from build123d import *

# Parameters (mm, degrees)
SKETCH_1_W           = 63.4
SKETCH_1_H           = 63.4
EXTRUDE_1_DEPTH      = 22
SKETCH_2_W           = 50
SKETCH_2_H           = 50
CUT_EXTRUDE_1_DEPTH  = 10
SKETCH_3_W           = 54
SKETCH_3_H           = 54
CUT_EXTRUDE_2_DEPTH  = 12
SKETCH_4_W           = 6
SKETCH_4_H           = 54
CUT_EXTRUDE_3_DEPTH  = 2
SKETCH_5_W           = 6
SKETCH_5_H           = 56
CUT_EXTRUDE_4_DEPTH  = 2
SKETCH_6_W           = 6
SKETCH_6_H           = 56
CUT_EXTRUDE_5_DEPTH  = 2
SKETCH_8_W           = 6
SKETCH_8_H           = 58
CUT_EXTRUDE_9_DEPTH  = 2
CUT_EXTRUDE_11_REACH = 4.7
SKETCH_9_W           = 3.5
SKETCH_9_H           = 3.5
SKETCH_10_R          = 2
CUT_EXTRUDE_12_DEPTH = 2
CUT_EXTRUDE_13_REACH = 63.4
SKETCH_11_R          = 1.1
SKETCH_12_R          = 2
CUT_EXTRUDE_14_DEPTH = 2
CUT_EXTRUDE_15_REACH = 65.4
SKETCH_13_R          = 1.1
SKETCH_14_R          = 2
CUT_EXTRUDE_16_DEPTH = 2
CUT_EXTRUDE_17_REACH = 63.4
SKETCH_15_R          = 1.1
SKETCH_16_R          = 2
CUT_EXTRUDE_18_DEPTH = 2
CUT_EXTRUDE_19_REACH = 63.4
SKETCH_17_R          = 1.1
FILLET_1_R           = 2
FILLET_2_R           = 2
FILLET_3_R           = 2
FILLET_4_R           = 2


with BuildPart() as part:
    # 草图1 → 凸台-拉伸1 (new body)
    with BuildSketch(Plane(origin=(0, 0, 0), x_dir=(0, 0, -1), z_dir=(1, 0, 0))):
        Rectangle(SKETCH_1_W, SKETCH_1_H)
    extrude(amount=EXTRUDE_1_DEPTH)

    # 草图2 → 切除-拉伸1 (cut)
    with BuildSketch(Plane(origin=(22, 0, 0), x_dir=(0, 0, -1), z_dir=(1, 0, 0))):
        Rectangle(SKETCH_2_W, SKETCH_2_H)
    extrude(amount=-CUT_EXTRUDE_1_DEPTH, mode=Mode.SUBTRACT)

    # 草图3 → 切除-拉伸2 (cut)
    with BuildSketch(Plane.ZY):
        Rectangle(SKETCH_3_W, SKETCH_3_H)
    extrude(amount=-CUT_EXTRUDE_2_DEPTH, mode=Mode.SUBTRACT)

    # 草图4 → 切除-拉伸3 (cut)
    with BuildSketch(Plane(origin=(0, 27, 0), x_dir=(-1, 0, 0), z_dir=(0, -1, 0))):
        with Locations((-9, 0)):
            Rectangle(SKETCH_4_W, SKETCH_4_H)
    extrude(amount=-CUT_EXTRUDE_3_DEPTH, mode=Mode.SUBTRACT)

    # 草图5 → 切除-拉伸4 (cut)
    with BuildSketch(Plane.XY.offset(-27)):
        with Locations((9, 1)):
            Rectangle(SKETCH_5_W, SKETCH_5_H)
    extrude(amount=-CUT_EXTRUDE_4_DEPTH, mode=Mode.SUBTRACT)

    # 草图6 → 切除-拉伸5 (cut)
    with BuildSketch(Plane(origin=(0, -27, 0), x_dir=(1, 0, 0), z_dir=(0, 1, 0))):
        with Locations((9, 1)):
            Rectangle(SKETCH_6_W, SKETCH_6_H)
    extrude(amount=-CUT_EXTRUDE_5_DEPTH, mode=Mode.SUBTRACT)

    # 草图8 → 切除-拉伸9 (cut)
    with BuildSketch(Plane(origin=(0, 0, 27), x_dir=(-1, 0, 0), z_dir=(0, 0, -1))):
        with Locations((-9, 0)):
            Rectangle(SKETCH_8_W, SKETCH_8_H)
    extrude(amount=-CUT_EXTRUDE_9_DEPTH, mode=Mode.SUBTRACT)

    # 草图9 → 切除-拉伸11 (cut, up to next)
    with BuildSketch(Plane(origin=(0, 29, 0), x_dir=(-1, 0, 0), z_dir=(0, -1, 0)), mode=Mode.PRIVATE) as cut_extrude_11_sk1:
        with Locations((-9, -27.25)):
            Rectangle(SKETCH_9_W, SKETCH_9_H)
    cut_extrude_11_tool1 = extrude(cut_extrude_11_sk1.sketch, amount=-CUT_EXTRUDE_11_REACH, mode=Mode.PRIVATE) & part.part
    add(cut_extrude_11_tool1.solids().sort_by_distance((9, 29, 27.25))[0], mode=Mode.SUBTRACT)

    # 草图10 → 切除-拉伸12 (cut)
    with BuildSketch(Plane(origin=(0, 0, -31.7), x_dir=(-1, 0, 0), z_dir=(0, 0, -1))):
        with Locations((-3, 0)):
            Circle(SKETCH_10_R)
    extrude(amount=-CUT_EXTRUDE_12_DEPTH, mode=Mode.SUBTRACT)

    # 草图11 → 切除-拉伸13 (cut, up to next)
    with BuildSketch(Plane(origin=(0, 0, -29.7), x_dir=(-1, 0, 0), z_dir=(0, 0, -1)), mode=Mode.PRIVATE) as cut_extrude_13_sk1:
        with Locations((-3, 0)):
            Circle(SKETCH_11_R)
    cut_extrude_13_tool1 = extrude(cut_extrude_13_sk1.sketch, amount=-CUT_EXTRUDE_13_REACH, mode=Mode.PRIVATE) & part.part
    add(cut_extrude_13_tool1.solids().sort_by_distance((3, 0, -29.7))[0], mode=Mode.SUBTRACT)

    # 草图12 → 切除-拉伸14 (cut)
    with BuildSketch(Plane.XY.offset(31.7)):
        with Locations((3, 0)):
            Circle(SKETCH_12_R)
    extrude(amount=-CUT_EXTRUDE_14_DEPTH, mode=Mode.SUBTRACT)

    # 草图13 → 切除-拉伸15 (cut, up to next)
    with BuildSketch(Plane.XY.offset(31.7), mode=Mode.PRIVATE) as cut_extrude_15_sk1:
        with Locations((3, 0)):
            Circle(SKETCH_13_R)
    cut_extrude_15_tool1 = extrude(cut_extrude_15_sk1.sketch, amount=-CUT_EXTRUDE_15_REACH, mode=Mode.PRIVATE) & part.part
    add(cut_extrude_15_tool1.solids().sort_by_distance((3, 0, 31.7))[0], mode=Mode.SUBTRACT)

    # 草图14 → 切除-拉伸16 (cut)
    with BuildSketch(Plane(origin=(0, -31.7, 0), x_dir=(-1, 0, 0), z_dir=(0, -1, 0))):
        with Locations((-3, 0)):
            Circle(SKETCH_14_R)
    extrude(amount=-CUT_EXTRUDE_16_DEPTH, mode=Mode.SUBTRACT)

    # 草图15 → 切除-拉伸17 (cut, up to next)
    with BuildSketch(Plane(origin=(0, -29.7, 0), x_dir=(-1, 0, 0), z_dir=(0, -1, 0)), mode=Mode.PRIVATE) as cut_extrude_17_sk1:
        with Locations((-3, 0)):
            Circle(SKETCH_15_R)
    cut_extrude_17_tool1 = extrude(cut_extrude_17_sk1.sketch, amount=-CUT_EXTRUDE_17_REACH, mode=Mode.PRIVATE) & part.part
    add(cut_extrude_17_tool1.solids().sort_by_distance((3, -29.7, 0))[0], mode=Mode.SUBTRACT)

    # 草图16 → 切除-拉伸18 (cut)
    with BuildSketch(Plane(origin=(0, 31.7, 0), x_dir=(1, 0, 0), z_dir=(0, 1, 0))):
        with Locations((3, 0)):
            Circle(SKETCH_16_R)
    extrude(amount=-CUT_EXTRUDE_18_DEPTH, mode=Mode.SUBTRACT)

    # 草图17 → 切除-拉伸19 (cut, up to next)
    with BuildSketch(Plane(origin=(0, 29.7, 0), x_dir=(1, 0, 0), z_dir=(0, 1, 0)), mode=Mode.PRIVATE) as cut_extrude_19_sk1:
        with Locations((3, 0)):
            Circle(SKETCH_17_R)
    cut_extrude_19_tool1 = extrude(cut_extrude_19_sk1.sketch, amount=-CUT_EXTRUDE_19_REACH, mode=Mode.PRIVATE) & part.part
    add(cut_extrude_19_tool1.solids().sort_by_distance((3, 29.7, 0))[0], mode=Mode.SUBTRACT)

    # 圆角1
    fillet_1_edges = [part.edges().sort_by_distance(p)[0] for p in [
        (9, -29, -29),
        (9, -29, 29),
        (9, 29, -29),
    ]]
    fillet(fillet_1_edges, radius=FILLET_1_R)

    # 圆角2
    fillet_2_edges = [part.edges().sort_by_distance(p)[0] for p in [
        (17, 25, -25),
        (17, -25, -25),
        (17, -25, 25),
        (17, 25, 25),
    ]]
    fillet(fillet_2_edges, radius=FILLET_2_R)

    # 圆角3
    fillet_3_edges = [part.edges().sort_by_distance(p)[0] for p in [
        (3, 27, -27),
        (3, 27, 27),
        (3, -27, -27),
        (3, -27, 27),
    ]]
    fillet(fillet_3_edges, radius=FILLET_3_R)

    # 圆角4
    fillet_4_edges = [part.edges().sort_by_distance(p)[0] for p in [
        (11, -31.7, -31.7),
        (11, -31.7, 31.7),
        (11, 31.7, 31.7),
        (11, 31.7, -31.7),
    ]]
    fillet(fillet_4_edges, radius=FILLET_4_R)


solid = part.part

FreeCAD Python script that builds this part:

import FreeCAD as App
import Part
import Sketcher


def edges_at(feature, points):
    """Names of the edges that pass closest to the given points."""
    edges = feature.Shape.Edges
    near = lambda p: min(range(len(edges)), key=lambda i: edges[i].distToShape(Part.Vertex(*p))[0])
    return sorted({f"Edge{near(p) + 1}" for p in points})


def add_polygon(sketch, points):
    """Adds a closed chain of lines whose ends are joined by coincident constraints."""
    first, n = sketch.GeometryCount, len(points)
    for a, b in zip(points, points[1:] + points[:1]):
        sketch.addGeometry(Part.LineSegment(App.Vector(*a, 0), App.Vector(*b, 0)), False)
    for i in range(n):
        sketch.addConstraint(Sketcher.Constraint("Coincident", first + i, 2, first + (i + 1) % n, 1))

doc = App.newDocument("Part")
params = doc.addObject("Spreadsheet::Sheet", "Params")
for row, (alias, value) in enumerate([
    ("sketch1_width", "63.4 mm"),
    ("pad1_length", "22 mm"),
    ("sketch2_width", "50 mm"),
    ("pocket1_length", "10 mm"),
    ("sketch3_width", "54 mm"),
    ("pocket2_length", "12 mm"),
    ("sketch4_width", "6 mm"),
    ("sketch4_height", "54 mm"),
    ("pocket3_length", "2 mm"),
    ("sketch5_width", "6 mm"),
    ("sketch5_height", "56 mm"),
    ("pocket4_length", "2 mm"),
    ("sketch6_width", "6 mm"),
    ("sketch6_height", "56 mm"),
    ("pocket5_length", "2 mm"),
    ("sketch7_width", "6 mm"),
    ("sketch7_height", "58 mm"),
    ("pocket6_length", "2 mm"),
    ("sketch8_width", "3.5 mm"),
    ("sketch9_diameter", "4 mm"),
    ("pocket8_length", "2 mm"),
    ("sketch10_diameter", "2.2 mm"),
    ("sketch11_diameter", "4 mm"),
    ("pocket10_length", "2 mm"),
    ("sketch12_diameter", "2.2 mm"),
    ("pocket11_length", "4.7 mm"),
    ("sketch13_diameter", "4 mm"),
    ("pocket12_length", "2 mm"),
    ("sketch14_diameter", "2.2 mm"),
    ("sketch15_diameter", "4 mm"),
    ("pocket14_length", "2 mm"),
    ("sketch16_diameter", "2.2 mm"),
    ("fillet_radius", "2 mm"),
    ("fillet2_radius", "2 mm"),
    ("fillet3_radius", "2 mm"),
    ("fillet4_radius", "2 mm"),
], start=1):
    params.set(f"A{row}", alias)
    params.set(f"B{row}", "=" + value)
    params.setAlias(f"B{row}", alias)

body = doc.addObject("PartDesign::Body", "Body")

# Sketch on YZ plane
sketch1 = body.newObject("Sketcher::SketchObject", "Sketch")
sketch1.AttachmentSupport = (doc.getObject("YZ_Plane"), [""])
sketch1.MapMode = "FlatFace"
add_polygon(sketch1, [(32, 32), (-32, 32), (-32, -32), (32, -32)])  # lines 0-3
sketch1.addConstraint([
    Sketcher.Constraint("Horizontal", 0),
    Sketcher.Constraint("Vertical", 1),
    Sketcher.Constraint("Horizontal", 2),
    Sketcher.Constraint("Vertical", 3),
    Sketcher.Constraint("Symmetric", 0, 2, 2, 2, -1, 1),
    Sketcher.Constraint("Equal", 2, 1),
    Sketcher.Constraint("DistanceX", 0, 2, 0, 1, 63.4),
])
sketch1.setExpression("Constraints[10]", "Params.sketch1_width")
pad1 = body.newObject("PartDesign::Pad", "Pad")
pad1.Profile = sketch1
pad1.setExpression("Length", "Params.pad1_length")

# Sketch on YZ plane
sketch2 = body.newObject("Sketcher::SketchObject", "Sketch001")
sketch2.AttachmentSupport = (doc.getObject("YZ_Plane"), [""])
sketch2.MapMode = "FlatFace"
sketch2.AttachmentOffset = App.Placement(App.Vector(0, 0, 22), App.Rotation())
add_polygon(sketch2, [(25, 25), (-25, 25), (-25, -25), (25, -25)])  # lines 0-3
sketch2.addConstraint([
    Sketcher.Constraint("Horizontal", 0),
    Sketcher.Constraint("Vertical", 1),
    Sketcher.Constraint("Horizontal", 2),
    Sketcher.Constraint("Vertical", 3),
    Sketcher.Constraint("Symmetric", 0, 2, 2, 2, -1, 1),
    Sketcher.Constraint("Equal", 2, 1),
    Sketcher.Constraint("DistanceX", 0, 2, 0, 1, 50.0),
])
sketch2.setExpression("Constraints[10]", "Params.sketch2_width")
pocket1 = body.newObject("PartDesign::Pocket", "Pocket")
pocket1.Profile = sketch2
pocket1.setExpression("Length", "Params.pocket1_length")

# Sketch on YZ plane
sketch3 = body.newObject("Sketcher::SketchObject", "Sketch002")
sketch3.AttachmentSupport = (doc.getObject("YZ_Plane"), [""])
sketch3.MapMode = "FlatFace"
add_polygon(sketch3, [(27, -27), (-27, -27), (-27, 27), (27, 27)])  # lines 0-3
sketch3.addConstraint([
    Sketcher.Constraint("Horizontal", 0),
    Sketcher.Constraint("Vertical", 1),
    Sketcher.Constraint("Horizontal", 2),
    Sketcher.Constraint("Vertical", 3),
    Sketcher.Constraint("Symmetric", 0, 2, 2, 2, -1, 1),
    Sketcher.Constraint("Equal", 2, 1),
    Sketcher.Constraint("DistanceX", 0, 2, 0, 1, 54.0),
])
sketch3.setExpression("Constraints[10]", "Params.sketch3_width")
pocket2 = body.newObject("PartDesign::Pocket", "Pocket001")
pocket2.Profile = sketch3
pocket2.setExpression("Length", "Params.pocket2_length")
pocket2.Reversed = True

# Sketch on XZ plane
sketch4 = body.newObject("Sketcher::SketchObject", "Sketch003")
sketch4.AttachmentSupport = (doc.getObject("XZ_Plane"), [""])
sketch4.MapMode = "FlatFace"
sketch4.AttachmentOffset = App.Placement(App.Vector(0, 0, -27), App.Rotation())
add_polygon(sketch4, [(12, -27), (12, 27), (6, 27), (6, -27)])  # lines 0-3
sketch4.addConstraint([
    Sketcher.Constraint("Vertical", 0),
    Sketcher.Constraint("Horizontal", 1),
    Sketcher.Constraint("Vertical", 2),
    Sketcher.Constraint("Horizontal", 3),
    Sketcher.Constraint("DistanceX", 1, 2, 1, 1, 6.0),
    Sketcher.Constraint("DistanceY", 0, 1, 0, 2, 54.0),
    Sketcher.Constraint("DistanceX", -1, 1, 0, 2, 12.0),
    Sketcher.Constraint("DistanceY", -1, 1, 0, 2, 27.0),
])
sketch4.setExpression("Constraints[8]", "Params.sketch4_width")
sketch4.setExpression("Constraints[9]", "Params.sketch4_height")
pocket3 = body.newObject("PartDesign::Pocket", "Pocket002")
pocket3.Profile = sketch4
pocket3.setExpression("Length", "Params.pocket3_length")

# Sketch on XY plane
sketch5 = body.newObject("Sketcher::SketchObject", "Sketch004")
sketch5.AttachmentSupport = (doc.getObject("XY_Plane"), [""])
sketch5.MapMode = "FlatFace"
sketch5.AttachmentOffset = App.Placement(App.Vector(0, 0, -27), App.Rotation())
add_polygon(sketch5, [(6, 29), (6, -27), (12, -27), (12, 29)])  # lines 0-3
sketch5.addConstraint([
    Sketcher.Constraint("Vertical", 0),
    Sketcher.Constraint("Horizontal", 1),
    Sketcher.Constraint("Vertical", 2),
    Sketcher.Constraint("Horizontal", 3),
    Sketcher.Constraint("DistanceX", 1, 1, 1, 2, 6.0),
    Sketcher.Constraint("DistanceY", 0, 2, 0, 1, 56.0),
    Sketcher.Constraint("DistanceX", -1, 1, 0, 2, 6.0),
    Sketcher.Constraint("DistanceY", 0, 2, -1, 1, 27.0),
])
sketch5.setExpression("Constraints[8]", "Params.sketch5_width")
sketch5.setExpression("Constraints[9]", "Params.sketch5_height")
pocket4 = body.newObject("PartDesign::Pocket", "Pocket003")
pocket4.Profile = sketch5
pocket4.setExpression("Length", "Params.pocket4_length")

# Sketch on XZ plane
sketch6 = body.newObject("Sketcher::SketchObject", "Sketch005")
sketch6.AttachmentSupport = (doc.getObject("XZ_Plane"), [""])
sketch6.MapMode = "FlatFace"
sketch6.AttachmentOffset = App.Placement(App.Vector(0, 0, 27), App.Rotation())
add_polygon(sketch6, [(6, -29), (6, 27), (12, 27), (12, -29)])  # lines 0-3
sketch6.addConstraint([
    Sketcher.Constraint("Vertical", 0),
    Sketcher.Constraint("Horizontal", 1),
    Sketcher.Constraint("Vertical", 2),
    Sketcher.Constraint("Horizontal", 3),
    Sketcher.Constraint("DistanceX", 1, 1, 1, 2, 6.0),
    Sketcher.Constraint("DistanceY", 0, 1, 0, 2, 56.0),
    Sketcher.Constraint("DistanceX", -1, 1, 0, 2, 6.0),
    Sketcher.Constraint("DistanceY", -1, 1, 0, 2, 27.0),
])
sketch6.setExpression("Constraints[8]", "Params.sketch6_width")
sketch6.setExpression("Constraints[9]", "Params.sketch6_height")
pocket5 = body.newObject("PartDesign::Pocket", "Pocket004")
pocket5.Profile = sketch6
pocket5.setExpression("Length", "Params.pocket5_length")
pocket5.Reversed = True

# Sketch on XY plane
sketch7 = body.newObject("Sketcher::SketchObject", "Sketch006")
sketch7.AttachmentSupport = (doc.getObject("XY_Plane"), [""])
sketch7.MapMode = "FlatFace"
sketch7.AttachmentOffset = App.Placement(App.Vector(0, 0, 27), App.Rotation())
add_polygon(sketch7, [(12, 29), (12, -29), (6, -29), (6, 29)])  # lines 0-3
sketch7.addConstraint([
    Sketcher.Constraint("Vertical", 0),
    Sketcher.Constraint("Horizontal", 1),
    Sketcher.Constraint("Vertical", 2),
    Sketcher.Constraint("Horizontal", 3),
    Sketcher.Constraint("DistanceX", 1, 2, 1, 1, 6.0),
    Sketcher.Constraint("DistanceY", 0, 2, 0, 1, 58.0),
    Sketcher.Constraint("DistanceX", -1, 1, 0, 2, 12.0),
    Sketcher.Constraint("DistanceY", 0, 2, -1, 1, 29.0),
])
sketch7.setExpression("Constraints[8]", "Params.sketch7_width")
sketch7.setExpression("Constraints[9]", "Params.sketch7_height")
pocket6 = body.newObject("PartDesign::Pocket", "Pocket005")
pocket6.Profile = sketch7
pocket6.setExpression("Length", "Params.pocket6_length")
pocket6.Reversed = True

# Sketch on XZ plane
sketch8 = body.newObject("Sketcher::SketchObject", "Sketch007")
sketch8.AttachmentSupport = (doc.getObject("XZ_Plane"), [""])
sketch8.MapMode = "FlatFace"
sketch8.AttachmentOffset = App.Placement(App.Vector(0, 0, -29), App.Rotation())
add_polygon(sketch8, [(10.8, 25.5), (10.8, 29), (7.2, 29), (7.2, 25.5)])  # lines 0-3
sketch8.addConstraint([
    Sketcher.Constraint("Vertical", 0),
    Sketcher.Constraint("Horizontal", 1),
    Sketcher.Constraint("Vertical", 2),
    Sketcher.Constraint("Horizontal", 3),
    Sketcher.Constraint("Equal", 3, 0),
    Sketcher.Constraint("DistanceX", 1, 2, 1, 1, 3.5),
    Sketcher.Constraint("DistanceY", -1, 1, 0, 2, 29.0),
    Sketcher.Constraint("DistanceX", -1, 1, 0, 2, 10.75),
])
sketch8.setExpression("Constraints[9]", "Params.sketch8_width")
pocket7 = body.newObject("PartDesign::Pocket", "Pocket006")
pocket7.Profile = sketch8
pocket7.Type = "UpToFirst"

# Sketch on XY plane
sketch9 = body.newObject("Sketcher::SketchObject", "Sketch008")
sketch9.AttachmentSupport = (doc.getObject("XY_Plane"), [""])
sketch9.MapMode = "FlatFace"
sketch9.AttachmentOffset = App.Placement(App.Vector(0, 0, -31.7), App.Rotation())
sketch9.addGeometry(Part.Circle(App.Vector(3, 0, 0), App.Vector(0, 0, 1), 2), False)
sketch9.addConstraint([
    Sketcher.Constraint("PointOnObject", 0, 3, -1),
    Sketcher.Constraint("Diameter", 0, 4.0),
    Sketcher.Constraint("DistanceX", -1, 1, 0, 3, 3.0),
])
sketch9.setExpression("Constraints[1]", "Params.sketch9_diameter")
pocket8 = body.newObject("PartDesign::Pocket", "Pocket007")
pocket8.Profile = sketch9
pocket8.setExpression("Length", "Params.pocket8_length")
pocket8.Reversed = True

# Sketch on XY plane
sketch10 = body.newObject("Sketcher::SketchObject", "Sketch009")
sketch10.AttachmentSupport = (doc.getObject("XY_Plane"), [""])
sketch10.MapMode = "FlatFace"
sketch10.AttachmentOffset = App.Placement(App.Vector(0, 0, -29.7), App.Rotation())
sketch10.addGeometry(Part.Circle(App.Vector(3, 0, 0), App.Vector(0, 0, 1), 1.1), False)
sketch10.addConstraint([
    Sketcher.Constraint("PointOnObject", 0, 3, -1),
    Sketcher.Constraint("Diameter", 0, 2.2),
    Sketcher.Constraint("DistanceX", -1, 1, 0, 3, 3.0),
])
sketch10.setExpression("Constraints[1]", "Params.sketch10_diameter")
pocket9 = body.newObject("PartDesign::Pocket", "Pocket008")
pocket9.Profile = sketch10
pocket9.Type = "UpToFirst"
pocket9.Reversed = True

# Sketch on XY plane
sketch11 = body.newObject("Sketcher::SketchObject", "Sketch010")
sketch11.AttachmentSupport = (doc.getObject("XY_Plane"), [""])
sketch11.MapMode = "FlatFace"
sketch11.AttachmentOffset = App.Placement(App.Vector(0, 0, 31.7), App.Rotation())
sketch11.addGeometry(Part.Circle(App.Vector(3, 0, 0), App.Vector(0, 0, 1), 2), False)
sketch11.addConstraint([
    Sketcher.Constraint("PointOnObject", 0, 3, -1),
    Sketcher.Constraint("Diameter", 0, 4.0),
    Sketcher.Constraint("DistanceX", -1, 1, 0, 3, 3.0),
])
sketch11.setExpression("Constraints[1]", "Params.sketch11_diameter")
pocket10 = body.newObject("PartDesign::Pocket", "Pocket009")
pocket10.Profile = sketch11
pocket10.setExpression("Length", "Params.pocket10_length")

# Sketch on XY plane
sketch12 = body.newObject("Sketcher::SketchObject", "Sketch011")
sketch12.AttachmentSupport = (doc.getObject("XY_Plane"), [""])
sketch12.MapMode = "FlatFace"
sketch12.AttachmentOffset = App.Placement(App.Vector(0, 0, 31.7), App.Rotation())
sketch12.addGeometry(Part.Circle(App.Vector(3, 0, 0), App.Vector(0, 0, 1), 1.1), False)
sketch12.addConstraint([
    Sketcher.Constraint("PointOnObject", 0, 3, -1),
    Sketcher.Constraint("Diameter", 0, 2.2),
    Sketcher.Constraint("DistanceX", -1, 1, 0, 3, 3.0),
])
sketch12.setExpression("Constraints[1]", "Params.sketch12_diameter")
pocket11 = body.newObject("PartDesign::Pocket", "Pocket010")
pocket11.Profile = sketch12
pocket11.setExpression("Length", "Params.pocket11_length")

# Sketch on XZ plane
sketch13 = body.newObject("Sketcher::SketchObject", "Sketch012")
sketch13.AttachmentSupport = (doc.getObject("XZ_Plane"), [""])
sketch13.MapMode = "FlatFace"
sketch13.AttachmentOffset = App.Placement(App.Vector(0, 0, 31.7), App.Rotation())
sketch13.addGeometry(Part.Circle(App.Vector(3, 0, 0), App.Vector(0, 0, 1), 2), False)
sketch13.addConstraint([
    Sketcher.Constraint("PointOnObject", 0, 3, -1),
    Sketcher.Constraint("Diameter", 0, 4.0),
    Sketcher.Constraint("DistanceX", -1, 1, 0, 3, 3.0),
])
sketch13.setExpression("Constraints[1]", "Params.sketch13_diameter")
pocket12 = body.newObject("PartDesign::Pocket", "Pocket011")
pocket12.Profile = sketch13
pocket12.setExpression("Length", "Params.pocket12_length")

# Sketch on XZ plane
sketch14 = body.newObject("Sketcher::SketchObject", "Sketch013")
sketch14.AttachmentSupport = (doc.getObject("XZ_Plane"), [""])
sketch14.MapMode = "FlatFace"
sketch14.AttachmentOffset = App.Placement(App.Vector(0, 0, 29.7), App.Rotation())
sketch14.addGeometry(Part.Circle(App.Vector(3, 0, 0), App.Vector(0, 0, 1), 1.1), False)
sketch14.addConstraint([
    Sketcher.Constraint("PointOnObject", 0, 3, -1),
    Sketcher.Constraint("Diameter", 0, 2.2),
    Sketcher.Constraint("DistanceX", -1, 1, 0, 3, 3.0),
])
sketch14.setExpression("Constraints[1]", "Params.sketch14_diameter")
pocket13 = body.newObject("PartDesign::Pocket", "Pocket012")
pocket13.Profile = sketch14
pocket13.Type = "UpToFirst"

# Sketch on XZ plane
sketch15 = body.newObject("Sketcher::SketchObject", "Sketch014")
sketch15.AttachmentSupport = (doc.getObject("XZ_Plane"), [""])
sketch15.MapMode = "FlatFace"
sketch15.AttachmentOffset = App.Placement(App.Vector(0, 0, -31.7), App.Rotation())
sketch15.addGeometry(Part.Circle(App.Vector(3, 0, 0), App.Vector(0, 0, 1), 2), False)
sketch15.addConstraint([
    Sketcher.Constraint("PointOnObject", 0, 3, -1),
    Sketcher.Constraint("Diameter", 0, 4.0),
    Sketcher.Constraint("DistanceX", -1, 1, 0, 3, 3.0),
])
sketch15.setExpression("Constraints[1]", "Params.sketch15_diameter")
pocket14 = body.newObject("PartDesign::Pocket", "Pocket013")
pocket14.Profile = sketch15
pocket14.setExpression("Length", "Params.pocket14_length")
pocket14.Reversed = True

# Sketch on XZ plane
sketch16 = body.newObject("Sketcher::SketchObject", "Sketch015")
sketch16.AttachmentSupport = (doc.getObject("XZ_Plane"), [""])
sketch16.MapMode = "FlatFace"
sketch16.AttachmentOffset = App.Placement(App.Vector(0, 0, -29.7), App.Rotation())
sketch16.addGeometry(Part.Circle(App.Vector(3, 0, 0), App.Vector(0, 0, 1), 1.1), False)
sketch16.addConstraint([
    Sketcher.Constraint("PointOnObject", 0, 3, -1),
    Sketcher.Constraint("Diameter", 0, 2.2),
    Sketcher.Constraint("DistanceX", -1, 1, 0, 3, 3.0),
])
sketch16.setExpression("Constraints[1]", "Params.sketch16_diameter")
pocket15 = body.newObject("PartDesign::Pocket", "Pocket014")
pocket15.Profile = sketch16
pocket15.Type = "UpToFirst"
pocket15.Reversed = True
doc.recompute()

fillet = body.newObject("PartDesign::Fillet", "Fillet")
fillet.Base = (pocket15, edges_at(pocket15, [(9, -29, -29), (9, -29, 29), (9, 29, -29)]))
fillet.setExpression("Radius", "Params.fillet_radius")
doc.recompute()

fillet2 = body.newObject("PartDesign::Fillet", "Fillet001")
fillet2.Base = (fillet, edges_at(fillet, [
    (17, 25, -25),
    (17, -25, -25),
    (17, -25, 25),
    (17, 25, 25),
]))
fillet2.setExpression("Radius", "Params.fillet2_radius")
doc.recompute()

fillet3 = body.newObject("PartDesign::Fillet", "Fillet002")
fillet3.Base = (fillet2, edges_at(fillet2, [
    (3, 27, -27),
    (3, 27, 27),
    (3, -27, -27),
    (3, -27, 27),
]))
fillet3.setExpression("Radius", "Params.fillet3_radius")
doc.recompute()

fillet4 = body.newObject("PartDesign::Fillet", "Fillet003")
fillet4.Base = (fillet3, edges_at(fillet3, [
    (11, -31.7, -31.7),
    (11, -31.7, 31.7),
    (11, 31.7, 31.7),
    (11, 31.7, -31.7),
]))
fillet4.setExpression("Radius", "Params.fillet4_radius")

doc.recompute()
